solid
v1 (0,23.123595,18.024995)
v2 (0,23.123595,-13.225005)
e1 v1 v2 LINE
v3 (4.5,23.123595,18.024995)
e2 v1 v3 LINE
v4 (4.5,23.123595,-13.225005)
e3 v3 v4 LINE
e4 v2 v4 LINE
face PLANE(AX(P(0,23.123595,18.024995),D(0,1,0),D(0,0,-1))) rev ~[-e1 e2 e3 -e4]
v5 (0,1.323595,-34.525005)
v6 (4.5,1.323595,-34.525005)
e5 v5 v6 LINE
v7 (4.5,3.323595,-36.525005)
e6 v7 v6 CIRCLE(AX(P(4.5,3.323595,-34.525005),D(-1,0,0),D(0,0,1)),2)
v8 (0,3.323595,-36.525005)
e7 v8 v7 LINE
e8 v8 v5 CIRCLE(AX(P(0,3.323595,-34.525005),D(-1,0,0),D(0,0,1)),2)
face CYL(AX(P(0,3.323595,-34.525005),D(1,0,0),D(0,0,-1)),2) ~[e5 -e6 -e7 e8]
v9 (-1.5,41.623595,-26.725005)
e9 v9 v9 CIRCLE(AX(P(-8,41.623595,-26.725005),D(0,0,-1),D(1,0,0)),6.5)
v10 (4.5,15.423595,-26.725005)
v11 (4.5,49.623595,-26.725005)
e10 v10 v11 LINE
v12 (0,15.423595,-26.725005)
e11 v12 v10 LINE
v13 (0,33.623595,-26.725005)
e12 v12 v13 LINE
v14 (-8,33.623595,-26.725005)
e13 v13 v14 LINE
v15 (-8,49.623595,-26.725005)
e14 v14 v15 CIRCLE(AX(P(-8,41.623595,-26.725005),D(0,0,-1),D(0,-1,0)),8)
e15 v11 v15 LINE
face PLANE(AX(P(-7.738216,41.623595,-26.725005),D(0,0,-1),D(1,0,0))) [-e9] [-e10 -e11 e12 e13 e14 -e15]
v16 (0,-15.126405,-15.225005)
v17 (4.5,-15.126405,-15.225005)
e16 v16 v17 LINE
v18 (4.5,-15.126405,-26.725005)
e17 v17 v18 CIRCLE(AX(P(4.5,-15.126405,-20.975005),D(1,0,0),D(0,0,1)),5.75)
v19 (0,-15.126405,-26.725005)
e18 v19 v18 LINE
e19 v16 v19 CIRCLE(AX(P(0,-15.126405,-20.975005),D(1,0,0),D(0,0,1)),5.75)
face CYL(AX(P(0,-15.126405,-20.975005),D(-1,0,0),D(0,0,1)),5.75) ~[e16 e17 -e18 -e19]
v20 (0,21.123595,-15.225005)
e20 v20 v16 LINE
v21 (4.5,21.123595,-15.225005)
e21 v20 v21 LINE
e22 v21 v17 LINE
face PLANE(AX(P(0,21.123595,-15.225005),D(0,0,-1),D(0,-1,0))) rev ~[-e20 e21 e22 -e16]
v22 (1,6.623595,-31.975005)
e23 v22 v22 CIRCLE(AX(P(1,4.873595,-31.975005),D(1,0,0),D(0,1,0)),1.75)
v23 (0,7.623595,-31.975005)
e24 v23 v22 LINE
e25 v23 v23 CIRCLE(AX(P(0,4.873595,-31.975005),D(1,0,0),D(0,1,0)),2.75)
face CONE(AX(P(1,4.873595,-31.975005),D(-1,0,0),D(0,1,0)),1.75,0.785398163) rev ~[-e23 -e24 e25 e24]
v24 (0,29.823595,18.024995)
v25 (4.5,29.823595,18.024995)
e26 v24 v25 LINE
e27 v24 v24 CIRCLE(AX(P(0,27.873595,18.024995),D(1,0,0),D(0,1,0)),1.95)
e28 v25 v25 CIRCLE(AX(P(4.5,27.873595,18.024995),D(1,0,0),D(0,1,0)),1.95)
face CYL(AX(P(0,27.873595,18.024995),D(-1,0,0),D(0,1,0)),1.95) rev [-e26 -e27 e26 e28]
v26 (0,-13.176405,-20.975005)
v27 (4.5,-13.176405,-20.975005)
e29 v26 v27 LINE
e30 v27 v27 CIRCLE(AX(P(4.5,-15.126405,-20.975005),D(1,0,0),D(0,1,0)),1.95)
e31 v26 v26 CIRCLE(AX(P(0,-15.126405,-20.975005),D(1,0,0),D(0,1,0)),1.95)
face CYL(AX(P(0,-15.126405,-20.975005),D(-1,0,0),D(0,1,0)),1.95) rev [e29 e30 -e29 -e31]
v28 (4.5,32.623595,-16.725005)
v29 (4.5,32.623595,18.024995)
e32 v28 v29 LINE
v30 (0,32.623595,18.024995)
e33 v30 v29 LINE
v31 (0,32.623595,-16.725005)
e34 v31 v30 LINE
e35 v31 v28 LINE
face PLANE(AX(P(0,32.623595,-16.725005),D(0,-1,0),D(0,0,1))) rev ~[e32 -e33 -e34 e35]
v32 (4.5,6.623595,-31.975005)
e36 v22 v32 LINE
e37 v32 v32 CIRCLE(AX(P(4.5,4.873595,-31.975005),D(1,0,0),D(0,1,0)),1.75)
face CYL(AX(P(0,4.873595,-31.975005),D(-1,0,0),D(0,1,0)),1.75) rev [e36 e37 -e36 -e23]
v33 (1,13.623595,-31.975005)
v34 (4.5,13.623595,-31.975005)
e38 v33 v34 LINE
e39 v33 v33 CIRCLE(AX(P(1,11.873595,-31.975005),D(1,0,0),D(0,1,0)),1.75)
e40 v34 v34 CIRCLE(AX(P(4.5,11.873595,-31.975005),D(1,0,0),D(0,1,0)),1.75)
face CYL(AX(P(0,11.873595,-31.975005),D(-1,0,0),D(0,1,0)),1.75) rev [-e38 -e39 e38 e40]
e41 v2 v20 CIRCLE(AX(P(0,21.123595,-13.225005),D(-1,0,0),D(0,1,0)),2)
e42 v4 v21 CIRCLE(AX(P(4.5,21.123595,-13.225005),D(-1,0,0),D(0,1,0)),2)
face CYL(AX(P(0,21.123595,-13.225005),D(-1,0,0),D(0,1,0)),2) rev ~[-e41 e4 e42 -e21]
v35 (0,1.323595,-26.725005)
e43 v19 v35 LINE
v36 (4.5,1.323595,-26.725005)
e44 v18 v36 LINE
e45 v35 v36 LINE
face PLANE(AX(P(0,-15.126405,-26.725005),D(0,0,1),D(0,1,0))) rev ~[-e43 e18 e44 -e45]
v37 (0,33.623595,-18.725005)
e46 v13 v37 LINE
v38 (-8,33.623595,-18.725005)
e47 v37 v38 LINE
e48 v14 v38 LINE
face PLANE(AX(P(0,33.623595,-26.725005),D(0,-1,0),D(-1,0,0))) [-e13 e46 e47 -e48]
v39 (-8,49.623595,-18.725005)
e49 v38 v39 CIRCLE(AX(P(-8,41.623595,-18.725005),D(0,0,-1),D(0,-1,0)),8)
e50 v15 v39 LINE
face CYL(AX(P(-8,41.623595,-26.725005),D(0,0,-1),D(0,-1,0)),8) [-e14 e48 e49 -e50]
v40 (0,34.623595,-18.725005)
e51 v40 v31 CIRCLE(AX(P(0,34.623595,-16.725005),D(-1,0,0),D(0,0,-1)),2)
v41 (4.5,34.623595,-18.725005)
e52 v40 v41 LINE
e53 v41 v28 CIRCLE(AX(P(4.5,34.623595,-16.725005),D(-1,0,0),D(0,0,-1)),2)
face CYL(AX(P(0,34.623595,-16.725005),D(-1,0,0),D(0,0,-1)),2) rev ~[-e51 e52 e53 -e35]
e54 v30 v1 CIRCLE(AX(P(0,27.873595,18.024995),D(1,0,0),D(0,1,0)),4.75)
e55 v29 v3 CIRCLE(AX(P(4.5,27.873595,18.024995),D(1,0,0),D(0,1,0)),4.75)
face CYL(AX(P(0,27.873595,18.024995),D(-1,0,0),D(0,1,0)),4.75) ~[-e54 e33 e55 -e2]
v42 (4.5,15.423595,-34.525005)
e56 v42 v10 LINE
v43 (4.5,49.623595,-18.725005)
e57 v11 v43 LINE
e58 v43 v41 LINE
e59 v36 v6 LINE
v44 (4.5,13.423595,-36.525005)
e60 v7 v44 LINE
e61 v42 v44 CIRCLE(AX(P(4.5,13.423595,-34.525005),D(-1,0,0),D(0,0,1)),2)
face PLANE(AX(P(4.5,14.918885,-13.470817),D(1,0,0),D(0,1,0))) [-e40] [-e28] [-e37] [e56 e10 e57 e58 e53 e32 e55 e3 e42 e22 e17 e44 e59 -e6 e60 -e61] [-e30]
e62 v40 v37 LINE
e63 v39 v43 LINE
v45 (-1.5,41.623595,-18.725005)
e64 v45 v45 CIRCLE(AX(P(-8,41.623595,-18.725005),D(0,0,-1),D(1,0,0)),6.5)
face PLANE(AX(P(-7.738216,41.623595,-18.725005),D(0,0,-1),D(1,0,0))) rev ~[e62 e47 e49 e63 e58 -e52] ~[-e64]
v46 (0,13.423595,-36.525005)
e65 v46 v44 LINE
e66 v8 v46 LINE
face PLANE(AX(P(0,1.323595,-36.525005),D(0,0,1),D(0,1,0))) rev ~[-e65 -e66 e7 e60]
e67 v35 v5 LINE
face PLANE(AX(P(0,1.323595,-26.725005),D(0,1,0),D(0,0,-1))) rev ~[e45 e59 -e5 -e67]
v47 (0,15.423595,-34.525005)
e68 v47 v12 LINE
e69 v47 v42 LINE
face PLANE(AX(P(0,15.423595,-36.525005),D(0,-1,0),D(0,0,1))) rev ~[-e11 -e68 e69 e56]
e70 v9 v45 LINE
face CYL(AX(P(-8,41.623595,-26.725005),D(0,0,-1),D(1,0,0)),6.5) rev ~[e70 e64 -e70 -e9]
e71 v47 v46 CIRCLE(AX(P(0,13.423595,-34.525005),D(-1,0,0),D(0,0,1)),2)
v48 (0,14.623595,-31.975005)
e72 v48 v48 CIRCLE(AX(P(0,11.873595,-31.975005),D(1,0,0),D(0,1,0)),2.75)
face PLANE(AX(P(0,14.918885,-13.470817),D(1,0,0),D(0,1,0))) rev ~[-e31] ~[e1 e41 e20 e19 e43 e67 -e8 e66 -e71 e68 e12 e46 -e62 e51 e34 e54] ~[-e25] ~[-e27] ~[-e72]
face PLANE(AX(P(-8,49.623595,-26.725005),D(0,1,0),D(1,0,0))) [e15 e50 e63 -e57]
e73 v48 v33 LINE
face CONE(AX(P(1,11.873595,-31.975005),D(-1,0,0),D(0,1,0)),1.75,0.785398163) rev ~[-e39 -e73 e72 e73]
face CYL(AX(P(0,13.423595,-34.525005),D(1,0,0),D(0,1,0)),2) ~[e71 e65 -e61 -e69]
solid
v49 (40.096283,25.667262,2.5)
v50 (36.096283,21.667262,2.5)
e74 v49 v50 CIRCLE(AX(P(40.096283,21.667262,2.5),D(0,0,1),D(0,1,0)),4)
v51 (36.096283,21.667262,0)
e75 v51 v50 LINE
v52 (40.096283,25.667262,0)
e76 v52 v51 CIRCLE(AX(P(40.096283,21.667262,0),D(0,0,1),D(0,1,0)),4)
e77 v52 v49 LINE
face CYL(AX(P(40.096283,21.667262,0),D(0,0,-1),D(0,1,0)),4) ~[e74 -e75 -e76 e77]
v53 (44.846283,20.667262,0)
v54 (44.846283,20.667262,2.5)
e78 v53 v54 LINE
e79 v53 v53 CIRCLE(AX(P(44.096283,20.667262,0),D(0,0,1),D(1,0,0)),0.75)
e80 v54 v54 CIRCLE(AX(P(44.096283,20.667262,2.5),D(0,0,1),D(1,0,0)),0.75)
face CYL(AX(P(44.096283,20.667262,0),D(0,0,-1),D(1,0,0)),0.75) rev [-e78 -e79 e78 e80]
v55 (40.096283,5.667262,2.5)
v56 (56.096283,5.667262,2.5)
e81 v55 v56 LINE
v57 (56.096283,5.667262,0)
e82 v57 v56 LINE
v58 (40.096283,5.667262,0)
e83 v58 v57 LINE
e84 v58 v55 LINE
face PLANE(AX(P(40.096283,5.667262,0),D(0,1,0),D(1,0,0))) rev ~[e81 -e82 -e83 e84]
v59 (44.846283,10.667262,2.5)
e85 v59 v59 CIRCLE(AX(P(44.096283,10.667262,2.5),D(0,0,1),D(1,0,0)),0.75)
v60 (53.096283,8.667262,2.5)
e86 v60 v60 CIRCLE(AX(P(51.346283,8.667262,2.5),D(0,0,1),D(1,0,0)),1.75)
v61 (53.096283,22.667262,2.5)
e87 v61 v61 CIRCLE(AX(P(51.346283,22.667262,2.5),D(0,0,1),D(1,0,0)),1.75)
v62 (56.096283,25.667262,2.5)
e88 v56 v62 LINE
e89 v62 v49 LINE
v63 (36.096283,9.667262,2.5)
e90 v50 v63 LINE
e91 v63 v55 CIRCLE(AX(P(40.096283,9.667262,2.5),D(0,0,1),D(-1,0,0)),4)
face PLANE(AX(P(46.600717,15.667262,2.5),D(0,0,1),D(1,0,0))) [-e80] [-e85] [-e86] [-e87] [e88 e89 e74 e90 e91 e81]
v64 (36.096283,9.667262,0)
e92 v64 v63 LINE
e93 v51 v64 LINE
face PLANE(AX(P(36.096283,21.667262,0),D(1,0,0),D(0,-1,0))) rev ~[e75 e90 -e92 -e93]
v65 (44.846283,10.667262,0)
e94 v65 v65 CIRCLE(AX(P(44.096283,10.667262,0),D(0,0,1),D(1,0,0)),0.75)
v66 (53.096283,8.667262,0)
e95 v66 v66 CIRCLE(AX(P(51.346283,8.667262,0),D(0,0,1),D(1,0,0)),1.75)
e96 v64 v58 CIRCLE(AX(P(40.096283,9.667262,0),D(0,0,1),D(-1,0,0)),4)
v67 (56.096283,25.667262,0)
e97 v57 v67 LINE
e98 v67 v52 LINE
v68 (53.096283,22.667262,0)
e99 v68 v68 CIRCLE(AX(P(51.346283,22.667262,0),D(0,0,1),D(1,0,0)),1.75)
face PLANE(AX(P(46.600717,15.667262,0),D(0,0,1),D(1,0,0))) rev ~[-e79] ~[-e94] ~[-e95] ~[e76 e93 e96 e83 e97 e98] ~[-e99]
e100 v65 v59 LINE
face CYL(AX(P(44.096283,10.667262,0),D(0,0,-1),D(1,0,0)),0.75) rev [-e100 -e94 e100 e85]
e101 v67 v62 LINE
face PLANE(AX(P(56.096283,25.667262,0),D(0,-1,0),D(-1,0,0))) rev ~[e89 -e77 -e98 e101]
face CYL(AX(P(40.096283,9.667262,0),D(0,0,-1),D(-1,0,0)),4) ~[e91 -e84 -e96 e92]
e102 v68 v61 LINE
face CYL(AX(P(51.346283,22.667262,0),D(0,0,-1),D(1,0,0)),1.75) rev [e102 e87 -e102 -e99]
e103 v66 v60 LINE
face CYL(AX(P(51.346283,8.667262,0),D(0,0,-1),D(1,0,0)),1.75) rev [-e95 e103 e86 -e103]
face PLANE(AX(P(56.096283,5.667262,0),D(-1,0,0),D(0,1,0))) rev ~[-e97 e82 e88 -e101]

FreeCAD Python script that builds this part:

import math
import FreeCAD as App
import Part
import Sketcher

V = App.Vector


def edges_at(feature, points):
    """Names of the edges that pass closest to the given points."""
    edges = feature.Shape.Edges
    near = lambda p: min(range(len(edges)), key=lambda i: edges[i].distToShape(Part.Vertex(*p))[0])
    return sorted({f"Edge{near(p) + 1}" for p in points})

doc = App.newDocument("Part")
body = doc.addObject("PartDesign::Body", "Body")

# Sketch on YZ plane
sketch1 = body.newObject("Sketcher::SketchObject", "Sketch")
sketch1.AttachmentSupport = (doc.getObject("YZ_Plane"), [""])
sketch1.MapMode = "FlatFace"
sketch1.addGeometry(Part.LineSegment(V(15.4, -26.7, 0), V(49.6, -26.7, 0)), False)
sketch1.addGeometry(Part.LineSegment(V(49.6, -26.7, 0), V(49.6, -18.7, 0)), False)
sketch1.addGeometry(Part.LineSegment(V(49.6, -18.7, 0), V(34.6, -18.7, 0)), False)
sketch1.addGeometry(Part.ArcOfCircle(Part.Circle(V(34.6, -16.7, 0), V(0, 0, 1), 2), math.radians(180), math.radians(270)), False)
sketch1.addGeometry(Part.LineSegment(V(32.6, -16.7, 0), V(32.6, 18, 0)), False)
sketch1.addGeometry(Part.ArcOfCircle(Part.Circle(V(27.9, 18, 0), V(0, 0, 1), 4.8), math.radians(0), math.radians(180)), False)
sketch1.addGeometry(Part.LineSegment(V(23.1, 18, 0), V(23.1, -13.2, 0)), False)
sketch1.addGeometry(Part.ArcOfCircle(Part.Circle(V(21.1, -13.2, 0), V(0, 0, 1), 2), math.radians(-90), math.radians(0)), False)
sketch1.addGeometry(Part.LineSegment(V(21.1, -15.2, 0), V(-15.1, -15.2, 0)), False)
sketch1.addGeometry(Part.ArcOfCircle(Part.Circle(V(-15.1, -21, 0), V(0, 0, 1), 5.8), math.radians(90), math.radians(270)), False)
sketch1.addGeometry(Part.LineSegment(V(-15.1, -26.7, 0), V(1.3, -26.7, 0)), False)
sketch1.addGeometry(Part.LineSegment(V(1.3, -26.7, 0), V(1.3, -36.5, 0)), False)
sketch1.addGeometry(Part.LineSegment(V(1.3, -36.5, 0), V(15.4, -36.5, 0)), False)
sketch1.addGeometry(Part.LineSegment(V(15.4, -36.5, 0), V(15.4, -26.7, 0)), False)
sketch1.addGeometry(Part.Circle(V(-15.1, -21, 0), V(0, 0, 1), 1.9), False)
sketch1.addGeometry(Part.Circle(V(4.9, -32, 0), V(0, 0, 1), 1.8), False)
sketch1.addGeometry(Part.Circle(V(11.9, -32, 0), V(0, 0, 1), 1.8), False)
sketch1.addGeometry(Part.Circle(V(27.9, 18, 0), V(0, 0, 1), 1.9), False)
sketch1.addConstraint(Sketcher.Constraint("Coincident", 0, 2, 1, 1))
sketch1.addConstraint(Sketcher.Constraint("Coincident", 1, 2, 2, 1))
sketch1.addConstraint(Sketcher.Constraint("Tangent", 2, 2, 3, 2))
sketch1.addConstraint(Sketcher.Constraint("Tangent", 3, 1, 4, 1))
sketch1.addConstraint(Sketcher.Constraint("Tangent", 4, 2, 5, 1))
sketch1.addConstraint(Sketcher.Constraint("Tangent", 5, 2, 6, 1))
sketch1.addConstraint(Sketcher.Constraint("Tangent", 6, 2, 7, 2))
sketch1.addConstraint(Sketcher.Constraint("Tangent", 7, 1, 8, 1))
sketch1.addConstraint(Sketcher.Constraint("Tangent", 8, 2, 9, 1))
sketch1.addConstraint(Sketcher.Constraint("Tangent", 9, 2, 10, 1))
sketch1.addConstraint(Sketcher.Constraint("Coincident", 10, 2, 11, 1))
sketch1.addConstraint(Sketcher.Constraint("Coincident", 11, 2, 12, 1))
sketch1.addConstraint(Sketcher.Constraint("Coincident", 12, 2, 13, 1))
sketch1.addConstraint(Sketcher.Constraint("Coincident", 13, 2, 0, 1))
sketch1.addConstraint(Sketcher.Constraint("Horizontal", 0))
sketch1.addConstraint(Sketcher.Constraint("Vertical", 1))
sketch1.addConstraint(Sketcher.Constraint("Horizontal", 2))
sketch1.addConstraint(Sketcher.Constraint("Vertical", 4))
sketch1.addConstraint(Sketcher.Constraint("Vertical", 6))
sketch1.addConstraint(Sketcher.Constraint("Horizontal", 8))
sketch1.addConstraint(Sketcher.Constraint("Horizontal", 10))
sketch1.addConstraint(Sketcher.Constraint("Vertical", 11))
sketch1.addConstraint(Sketcher.Constraint("Horizontal", 12))
sketch1.addConstraint(Sketcher.Constraint("Vertical", 13))
sketch1.addConstraint(Sketcher.Constraint("Coincident", 14, 3, 9, 3))
sketch1.addConstraint(Sketcher.Constraint("Coincident", 17, 3, 5, 3))
sketch1.addConstraint(Sketcher.Constraint("Equal", 3, 7))
sketch1.addConstraint(Sketcher.Constraint("Equal", 15, 16))
sketch1.addConstraint(Sketcher.Constraint("Equal", 14, 17))
sketch1.addConstraint(Sketcher.Constraint("Horizontal", 15, 3, 16, 3))
sketch1.addConstraint(Sketcher.Constraint("Horizontal", 0, 2, 9, 2))
sketch1.addConstraint(Sketcher.Constraint("Radius", 3, 2.0))
sketch1.addConstraint(Sketcher.Constraint("Diameter", 14, 3.9))
sketch1.addConstraint(Sketcher.Constraint("Diameter", 15, 3.5))
sketch1.addConstraint(Sketcher.Constraint("DistanceX", 2, 2, 2, 1, 15.0))
sketch1.addConstraint(Sketcher.Constraint("DistanceY", 1, 1, 1, 2, 8.0))
sketch1.addConstraint(Sketcher.Constraint("Radius", 5, 4.75))
sketch1.addConstraint(Sketcher.Constraint("Radius", 9, 5.75))
sketch1.addConstraint(Sketcher.Constraint("DistanceX", 0, 1, 0, 2, 34.2))
sketch1.addConstraint(Sketcher.Constraint("DistanceX", 12, 1, 12, 2, 14.1))
sketch1.addConstraint(Sketcher.Constraint("DistanceY", 11, 2, 11, 1, 9.8))
sketch1.addConstraint(Sketcher.Constraint("DistanceX", 9, 3, 5, 3, 43.0))
sketch1.addConstraint(Sketcher.Constraint("DistanceY", 9, 3, 5, 3, 39.0))
sketch1.addConstraint(Sketcher.Constraint("DistanceX", 9, 3, 15, 3, 20.0))
sketch1.addConstraint(Sketcher.Constraint("DistanceY", 15, 3, 9, 3, 11.0))
sketch1.addConstraint(Sketcher.Constraint("DistanceX", 15, 3, 16, 3, 7.0))
sketch1.addConstraint(Sketcher.Constraint("DistanceX", -1, 1, 3, 3, 34.623595))
sketch1.addConstraint(Sketcher.Constraint("DistanceY", 3, 3, -1, 1, 16.725005))
pad1 = body.newObject("PartDesign::Pad", "Pad")
pad1.Profile = sketch1
pad1.Length = 4.5

# Sketch on XY plane
sketch2 = body.newObject("Sketcher::SketchObject", "Sketch001")
sketch2.AttachmentSupport = (doc.getObject("XY_Plane"), [""])
sketch2.MapMode = "FlatFace"
sketch2.AttachmentOffset = App.Placement(V(0, 0, -26.725005), App.Rotation())
sketch2.addGeometry(Part.ArcOfCircle(Part.Circle(V(-8, 42, 0), V(0, 0, 1), 8), math.radians(90), math.radians(270)), False)
sketch2.addGeometry(Part.LineSegment(V(-8, 50, 0), V(0, 50, 0)), False)
sketch2.addGeometry(Part.LineSegment(V(0, 50, 0), V(0, 34, 0)), False)
sketch2.addGeometry(Part.LineSegment(V(0, 34, 0), V(-8, 34, 0)), False)
sketch2.addGeometry(Part.Circle(V(-8, 42, 0), V(0, 0, 1), 6), False)
sketch2.addConstraint(Sketcher.Constraint("Tangent", 0, 1, 1, 1))
sketch2.addConstraint(Sketcher.Constraint("Coincident", 1, 2, 2, 1))
sketch2.addConstraint(Sketcher.Constraint("Coincident", 2, 2, 3, 1))
sketch2.addConstraint(Sketcher.Constraint("Tangent", 3, 2, 0, 2))
sketch2.addConstraint(Sketcher.Constraint("Horizontal", 1))
sketch2.addConstraint(Sketcher.Constraint("Vertical", 2))
sketch2.addConstraint(Sketcher.Constraint("Horizontal", 3))
sketch2.addConstraint(Sketcher.Constraint("Coincident", 4, 3, 0, 3))
sketch2.addConstraint(Sketcher.Constraint("PointOnObject", 1, 2, -2))
sketch2.addConstraint(Sketcher.Constraint("Diameter", 4, 13.0))
sketch2.addConstraint(Sketcher.Constraint("Radius", 0, 8.0))
sketch2.addConstraint(Sketcher.Constraint("DistanceX", 1, 1, 1, 2, 8.0))
sketch2.addConstraint(Sketcher.Constraint("DistanceY", -1, 1, 0, 3, 41.623595))
pad2 = body.newObject("PartDesign::Pad", "Pad001")
pad2.Profile = sketch2
pad2.Length = 8
doc.recompute()

chamfer = body.newObject("PartDesign::Chamfer", "Chamfer")
chamfer.Base = (pad2, edges_at(pad2, [(0, 3.124, -31.975), (0, 10.124, -31.975)]))
chamfer.Size = 1
doc.recompute()

fillet = body.newObject("PartDesign::Fillet", "Fillet")
fillet.Base = (chamfer, edges_at(chamfer, [(2.25, 15.424, -36.525), (2.25, 1.324, -36.525)]))
fillet.Radius = 2
body2 = doc.addObject("PartDesign::Body", "Body001")

# Sketch on XY plane
sketch3 = body2.newObject("Sketcher::SketchObject", "Sketch002")
sketch3.AttachmentSupport = (doc.getObject("XY_Plane001"), [""])
sketch3.MapMode = "FlatFace"
sketch3.addGeometry(Part.LineSegment(V(56.1, 5.7, 0), V(56.1, 25.7, 0)), False)
sketch3.addGeometry(Part.LineSegment(V(56.1, 25.7, 0), V(40.1, 25.7, 0)), False)
sketch3.addGeometry(Part.ArcOfCircle(Part.Circle(V(40.1, 21.7, 0), V(0, 0, 1), 4), math.radians(90), math.radians(180)), False)
sketch3.addGeometry(Part.LineSegment(V(36.1, 21.7, 0), V(36.1, 9.7, 0)), False)
sketch3.addGeometry(Part.ArcOfCircle(Part.Circle(V(40.1, 9.7, 0), V(0, 0, 1), 4), math.radians(180), math.radians(270)), False)
sketch3.addGeometry(Part.LineSegment(V(40.1, 5.7, 0), V(56.1, 5.7, 0)), False)
sketch3.addGeometry(Part.Circle(V(44.1, 10.7, 0), V(0, 0, 1), 0.8), False)
sketch3.addGeometry(Part.Circle(V(51.3, 8.7, 0), V(0, 0, 1), 1.8), False)
sketch3.addGeometry(Part.Circle(V(44.1, 20.7, 0), V(0, 0, 1), 0.8), False)
sketch3.addGeometry(Part.Circle(V(51.3, 22.7, 0), V(0, 0, 1), 1.8), False)
sketch3.addConstraint(Sketcher.Constraint("Coincident", 0, 2, 1, 1))
sketch3.addConstraint(Sketcher.Constraint("Tangent", 1, 2, 2, 1))
sketch3.addConstraint(Sketcher.Constraint("Tangent", 2, 2, 3, 1))
sketch3.addConstraint(Sketcher.Constraint("Tangent", 3, 2, 4, 1))
sketch3.addConstraint(Sketcher.Constraint("Tangent", 4, 2, 5, 1))
sketch3.addConstraint(Sketcher.Constraint("Coincident", 5, 2, 0, 1))
sketch3.addConstraint(Sketcher.Constraint("Vertical", 0))
sketch3.addConstraint(Sketcher.Constraint("Horizontal", 1))
sketch3.addConstraint(Sketcher.Constraint("Vertical", 3))
sketch3.addConstraint(Sketcher.Constraint("Horizontal", 5))
sketch3.addConstraint(Sketcher.Constraint("Equal", 2, 4))
sketch3.addConstraint(Sketcher.Constraint("Equal", 6, 8))
sketch3.addConstraint(Sketcher.Constraint("Equal", 7, 9))
sketch3.addConstraint(Sketcher.Constraint("Vertical", 6, 3, 8, 3))
sketch3.addConstraint(Sketcher.Constraint("Vertical", 7, 3, 9, 3))
sketch3.addConstraint(Sketcher.Constraint("Radius", 2, 4.0))
sketch3.addConstraint(Sketcher.Constraint("Diameter", 6, 1.5))
sketch3.addConstraint(Sketcher.Constraint("Diameter", 7, 3.5))
sketch3.addConstraint(Sketcher.Constraint("DistanceX", 1, 2, 1, 1, 16.0))
sketch3.addConstraint(Sketcher.Constraint("DistanceY", 0, 1, 0, 2, 20.0))
sketch3.addConstraint(Sketcher.Constraint("DistanceX", 4, 3, 6, 3, 4.0))
sketch3.addConstraint(Sketcher.Constraint("DistanceY", 4, 3, 6, 3, 1.0))
sketch3.addConstraint(Sketcher.Constraint("DistanceY", 7, 3, 6, 3, 2.0))
sketch3.addConstraint(Sketcher.Constraint("DistanceY", 8, 3, 2, 3, 1.0))
sketch3.addConstraint(Sketcher.Constraint("DistanceY", 8, 3, 9, 3, 2.0))
sketch3.addConstraint(Sketcher.Constraint("DistanceX", 6, 3, 7, 3, 7.25))
sketch3.addConstraint(Sketcher.Constraint("DistanceY", -1, 1, 2, 3, 21.667262))
sketch3.addConstraint(Sketcher.Constraint("DistanceX", -1, 1, 2, 3, 40.096283))
pad3 = body2.newObject("PartDesign::Pad", "Pad002")
pad3.Profile = sketch3
pad3.Length = 2.5

doc.recompute()
